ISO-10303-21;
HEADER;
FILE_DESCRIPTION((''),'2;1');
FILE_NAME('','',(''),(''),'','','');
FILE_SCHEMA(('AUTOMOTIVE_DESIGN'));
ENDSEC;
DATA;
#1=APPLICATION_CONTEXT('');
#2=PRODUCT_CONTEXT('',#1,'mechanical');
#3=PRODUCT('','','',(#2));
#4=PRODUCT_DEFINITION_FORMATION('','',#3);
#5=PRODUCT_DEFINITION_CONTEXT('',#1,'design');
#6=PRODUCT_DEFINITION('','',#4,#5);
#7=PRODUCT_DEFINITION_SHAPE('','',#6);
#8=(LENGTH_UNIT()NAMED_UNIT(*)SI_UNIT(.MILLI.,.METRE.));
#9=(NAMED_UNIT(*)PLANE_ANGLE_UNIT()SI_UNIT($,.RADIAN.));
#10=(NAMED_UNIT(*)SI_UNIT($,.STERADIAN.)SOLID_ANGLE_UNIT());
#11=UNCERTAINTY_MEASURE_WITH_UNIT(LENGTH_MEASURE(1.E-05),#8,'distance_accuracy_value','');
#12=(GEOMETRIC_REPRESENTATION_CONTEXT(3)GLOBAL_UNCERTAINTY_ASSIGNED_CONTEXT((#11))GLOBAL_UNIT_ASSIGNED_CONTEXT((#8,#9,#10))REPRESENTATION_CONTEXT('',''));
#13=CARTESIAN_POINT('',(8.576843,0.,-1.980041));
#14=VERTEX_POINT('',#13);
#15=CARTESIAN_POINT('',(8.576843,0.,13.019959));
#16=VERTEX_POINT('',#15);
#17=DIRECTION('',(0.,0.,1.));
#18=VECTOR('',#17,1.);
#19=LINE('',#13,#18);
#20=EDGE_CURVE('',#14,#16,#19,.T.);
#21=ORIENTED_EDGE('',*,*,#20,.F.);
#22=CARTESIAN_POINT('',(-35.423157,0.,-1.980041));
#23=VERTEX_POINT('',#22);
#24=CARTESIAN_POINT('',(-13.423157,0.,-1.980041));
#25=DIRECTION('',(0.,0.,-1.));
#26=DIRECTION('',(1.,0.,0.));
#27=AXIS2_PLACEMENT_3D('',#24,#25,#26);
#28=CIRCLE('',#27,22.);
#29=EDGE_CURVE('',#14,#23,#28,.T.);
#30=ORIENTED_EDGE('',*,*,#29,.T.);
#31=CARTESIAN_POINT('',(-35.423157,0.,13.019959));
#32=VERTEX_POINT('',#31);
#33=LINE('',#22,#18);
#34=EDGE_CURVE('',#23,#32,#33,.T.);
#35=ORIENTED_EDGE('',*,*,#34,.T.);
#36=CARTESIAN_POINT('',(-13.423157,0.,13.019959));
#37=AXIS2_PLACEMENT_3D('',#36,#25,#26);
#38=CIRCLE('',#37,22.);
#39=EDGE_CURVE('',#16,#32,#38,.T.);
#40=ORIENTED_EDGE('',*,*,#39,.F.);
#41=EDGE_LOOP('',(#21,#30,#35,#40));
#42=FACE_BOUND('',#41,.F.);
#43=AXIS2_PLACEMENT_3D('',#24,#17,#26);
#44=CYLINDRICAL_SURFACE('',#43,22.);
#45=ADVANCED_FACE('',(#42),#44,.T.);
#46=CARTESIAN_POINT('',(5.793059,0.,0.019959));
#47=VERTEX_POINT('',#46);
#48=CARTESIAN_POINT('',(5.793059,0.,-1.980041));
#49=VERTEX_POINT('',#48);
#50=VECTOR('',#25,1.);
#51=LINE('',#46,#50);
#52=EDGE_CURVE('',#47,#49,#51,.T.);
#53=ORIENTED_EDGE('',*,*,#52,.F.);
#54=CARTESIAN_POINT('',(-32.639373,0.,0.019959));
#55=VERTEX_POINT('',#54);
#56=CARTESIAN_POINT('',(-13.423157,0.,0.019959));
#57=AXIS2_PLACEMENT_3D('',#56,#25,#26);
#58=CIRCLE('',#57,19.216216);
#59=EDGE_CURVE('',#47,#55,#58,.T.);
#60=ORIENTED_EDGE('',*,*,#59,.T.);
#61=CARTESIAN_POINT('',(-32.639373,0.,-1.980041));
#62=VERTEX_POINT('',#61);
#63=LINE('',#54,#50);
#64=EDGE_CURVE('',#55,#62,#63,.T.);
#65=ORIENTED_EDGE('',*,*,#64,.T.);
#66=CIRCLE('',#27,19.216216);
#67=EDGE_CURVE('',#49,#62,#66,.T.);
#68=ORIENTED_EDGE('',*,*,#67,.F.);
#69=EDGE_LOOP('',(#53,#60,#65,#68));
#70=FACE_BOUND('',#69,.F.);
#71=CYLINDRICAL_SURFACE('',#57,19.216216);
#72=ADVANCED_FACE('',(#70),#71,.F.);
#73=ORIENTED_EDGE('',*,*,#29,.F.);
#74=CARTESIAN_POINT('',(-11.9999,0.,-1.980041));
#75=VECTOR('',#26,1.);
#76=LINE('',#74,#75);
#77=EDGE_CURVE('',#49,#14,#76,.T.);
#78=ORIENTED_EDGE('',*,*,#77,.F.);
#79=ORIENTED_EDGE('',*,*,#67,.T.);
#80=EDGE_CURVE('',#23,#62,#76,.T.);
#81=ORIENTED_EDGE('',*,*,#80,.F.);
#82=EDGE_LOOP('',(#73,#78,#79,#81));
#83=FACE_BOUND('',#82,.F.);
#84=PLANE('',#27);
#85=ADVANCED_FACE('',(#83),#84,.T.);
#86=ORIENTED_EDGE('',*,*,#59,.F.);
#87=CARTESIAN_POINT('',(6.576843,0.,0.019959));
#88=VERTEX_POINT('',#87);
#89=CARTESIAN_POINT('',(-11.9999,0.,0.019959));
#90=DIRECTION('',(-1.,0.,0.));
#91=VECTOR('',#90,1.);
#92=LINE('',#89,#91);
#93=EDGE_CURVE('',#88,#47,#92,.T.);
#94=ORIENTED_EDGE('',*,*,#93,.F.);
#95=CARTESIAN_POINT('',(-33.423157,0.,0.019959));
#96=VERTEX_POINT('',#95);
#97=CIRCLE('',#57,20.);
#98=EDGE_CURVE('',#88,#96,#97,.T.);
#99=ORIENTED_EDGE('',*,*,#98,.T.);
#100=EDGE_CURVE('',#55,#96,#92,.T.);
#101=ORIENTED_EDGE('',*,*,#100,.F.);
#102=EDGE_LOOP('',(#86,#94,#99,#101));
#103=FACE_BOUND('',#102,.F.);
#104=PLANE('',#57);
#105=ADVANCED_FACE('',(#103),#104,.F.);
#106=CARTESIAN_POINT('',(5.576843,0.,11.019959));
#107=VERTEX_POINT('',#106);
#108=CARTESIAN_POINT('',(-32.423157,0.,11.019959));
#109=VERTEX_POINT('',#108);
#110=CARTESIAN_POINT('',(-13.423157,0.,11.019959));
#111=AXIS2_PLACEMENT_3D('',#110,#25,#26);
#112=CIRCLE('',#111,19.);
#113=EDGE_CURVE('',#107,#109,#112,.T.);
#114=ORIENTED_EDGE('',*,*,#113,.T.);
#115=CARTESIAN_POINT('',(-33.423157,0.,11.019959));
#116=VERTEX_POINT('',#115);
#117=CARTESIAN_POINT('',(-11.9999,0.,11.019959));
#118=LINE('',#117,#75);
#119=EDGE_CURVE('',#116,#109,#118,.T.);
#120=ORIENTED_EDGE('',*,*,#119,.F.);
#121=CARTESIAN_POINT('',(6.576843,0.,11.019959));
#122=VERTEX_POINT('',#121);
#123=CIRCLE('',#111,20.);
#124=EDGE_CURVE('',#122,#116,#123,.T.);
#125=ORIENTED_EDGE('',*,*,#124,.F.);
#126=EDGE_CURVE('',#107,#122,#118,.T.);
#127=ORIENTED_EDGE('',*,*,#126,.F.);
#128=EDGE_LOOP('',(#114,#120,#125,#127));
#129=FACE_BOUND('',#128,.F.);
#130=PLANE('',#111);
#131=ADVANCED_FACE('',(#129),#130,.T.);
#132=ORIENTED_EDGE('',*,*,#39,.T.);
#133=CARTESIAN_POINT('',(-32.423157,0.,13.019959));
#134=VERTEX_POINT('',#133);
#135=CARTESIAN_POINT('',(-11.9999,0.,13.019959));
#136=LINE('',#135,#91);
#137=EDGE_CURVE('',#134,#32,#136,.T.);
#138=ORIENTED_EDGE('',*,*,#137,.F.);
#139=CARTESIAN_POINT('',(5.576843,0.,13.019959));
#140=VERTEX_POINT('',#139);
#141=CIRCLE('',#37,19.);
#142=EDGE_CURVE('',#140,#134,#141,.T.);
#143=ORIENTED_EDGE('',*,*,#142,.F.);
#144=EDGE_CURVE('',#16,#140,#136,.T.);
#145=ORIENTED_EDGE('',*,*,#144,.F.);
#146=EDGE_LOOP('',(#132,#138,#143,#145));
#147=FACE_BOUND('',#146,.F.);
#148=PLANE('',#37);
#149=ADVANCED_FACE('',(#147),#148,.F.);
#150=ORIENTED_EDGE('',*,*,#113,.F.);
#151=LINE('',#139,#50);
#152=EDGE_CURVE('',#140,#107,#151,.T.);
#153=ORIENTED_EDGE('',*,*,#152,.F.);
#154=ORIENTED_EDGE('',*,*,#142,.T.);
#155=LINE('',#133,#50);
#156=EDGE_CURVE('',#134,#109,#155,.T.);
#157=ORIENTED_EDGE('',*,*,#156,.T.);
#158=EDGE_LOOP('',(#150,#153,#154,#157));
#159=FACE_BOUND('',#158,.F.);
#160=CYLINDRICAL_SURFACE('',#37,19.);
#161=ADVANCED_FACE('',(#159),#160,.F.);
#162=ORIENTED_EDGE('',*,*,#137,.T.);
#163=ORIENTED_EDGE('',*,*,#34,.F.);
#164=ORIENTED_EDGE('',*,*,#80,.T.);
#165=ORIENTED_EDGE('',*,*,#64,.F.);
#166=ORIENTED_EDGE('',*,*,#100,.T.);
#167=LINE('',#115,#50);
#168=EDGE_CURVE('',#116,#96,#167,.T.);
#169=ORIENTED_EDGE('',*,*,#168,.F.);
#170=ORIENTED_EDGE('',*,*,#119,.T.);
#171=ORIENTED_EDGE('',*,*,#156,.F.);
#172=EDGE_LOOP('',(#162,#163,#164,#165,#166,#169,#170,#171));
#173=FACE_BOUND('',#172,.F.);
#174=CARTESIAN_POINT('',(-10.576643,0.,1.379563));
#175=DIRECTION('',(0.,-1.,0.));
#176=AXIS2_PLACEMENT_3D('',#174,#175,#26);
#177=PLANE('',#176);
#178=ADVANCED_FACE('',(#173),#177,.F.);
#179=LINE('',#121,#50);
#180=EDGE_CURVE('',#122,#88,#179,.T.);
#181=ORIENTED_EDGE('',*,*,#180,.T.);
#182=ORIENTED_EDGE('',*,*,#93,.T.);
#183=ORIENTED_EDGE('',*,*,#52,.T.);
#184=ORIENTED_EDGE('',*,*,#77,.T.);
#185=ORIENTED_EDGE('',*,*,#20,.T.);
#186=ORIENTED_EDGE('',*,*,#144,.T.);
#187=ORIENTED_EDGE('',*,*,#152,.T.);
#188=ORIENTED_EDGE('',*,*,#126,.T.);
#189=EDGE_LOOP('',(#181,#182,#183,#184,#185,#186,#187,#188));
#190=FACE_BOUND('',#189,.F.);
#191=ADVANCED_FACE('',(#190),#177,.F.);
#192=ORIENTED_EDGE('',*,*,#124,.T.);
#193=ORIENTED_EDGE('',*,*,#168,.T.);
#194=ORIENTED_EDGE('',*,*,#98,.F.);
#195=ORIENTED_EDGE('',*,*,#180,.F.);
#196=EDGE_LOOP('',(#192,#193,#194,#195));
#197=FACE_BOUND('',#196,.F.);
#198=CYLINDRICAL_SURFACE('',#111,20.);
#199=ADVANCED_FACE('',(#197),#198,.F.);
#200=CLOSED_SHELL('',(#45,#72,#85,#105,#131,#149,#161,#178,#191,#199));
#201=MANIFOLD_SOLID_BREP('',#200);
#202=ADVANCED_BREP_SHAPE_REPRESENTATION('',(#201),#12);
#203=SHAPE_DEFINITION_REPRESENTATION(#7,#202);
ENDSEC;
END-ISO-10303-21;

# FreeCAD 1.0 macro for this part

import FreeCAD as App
import Part
import Sketcher
from FreeCAD import Vector

doc = App.newDocument("Part")
body = doc.addObject("PartDesign::Body", "Body")

# Sketch on XZ plane
sketch1 = doc.addObject("Sketcher::SketchObject", "Sketch")
body.addObject(sketch1)
sketch1.AttachmentSupport = (doc.XZ_Plane, [""])
sketch1.MapMode = "FlatFace"
sketch1.addGeometry([
    Part.LineSegment(Vector(8.576843, 13.019959, 0), Vector(5.576843, 13.019959, 0)),  # 0
    Part.LineSegment(Vector(5.576843, 13.019959, 0), Vector(5.576843, 11.019959, 0)),  # 1
    Part.LineSegment(Vector(5.576843, 11.019959, 0), Vector(6.576843, 11.019959, 0)),  # 2
    Part.LineSegment(Vector(6.576843, 11.019959, 0), Vector(6.576843, 0.019959, 0)),  # 3
    Part.LineSegment(Vector(6.576843, 0.019959, 0), Vector(5.793059, 0.019959, 0)),  # 4
    Part.LineSegment(Vector(5.793059, 0.019959, 0), Vector(5.793059, -1.980041, 0)),  # 5
    Part.LineSegment(Vector(5.793059, -1.980041, 0), Vector(8.576843, -1.980041, 0)),  # 6
    Part.LineSegment(Vector(8.576843, -1.980041, 0), Vector(8.576843, 13.019959, 0)),  # 7
], False)
sketch1.addGeometry(Part.LineSegment(Vector(-13.423157, 13.019959, 0), Vector(-13.423157, -1.980041, 0)), True)  # axis
sketch1.addConstraint([
    Sketcher.Constraint("Coincident", 0, 2, 1, 1),
    Sketcher.Constraint("Coincident", 1, 2, 2, 1),
    Sketcher.Constraint("Coincident", 2, 2, 3, 1),
    Sketcher.Constraint("Coincident", 3, 2, 4, 1),
    Sketcher.Constraint("Coincident", 4, 2, 5, 1),
    Sketcher.Constraint("Coincident", 5, 2, 6, 1),
    Sketcher.Constraint("Coincident", 6, 2, 7, 1),
    Sketcher.Constraint("Coincident", 7, 2, 0, 1),
    Sketcher.Constraint("Horizontal", 0),
    Sketcher.Constraint("Vertical", 1),
    Sketcher.Constraint("Horizontal", 2),
    Sketcher.Constraint("Vertical", 3),
    Sketcher.Constraint("Horizontal", 4),
    Sketcher.Constraint("Vertical", 5),
    Sketcher.Constraint("Horizontal", 6),
    Sketcher.Constraint("Vertical", 7),
    Sketcher.Constraint("Vertical", 8),
    Sketcher.Constraint("Horizontal", 7, 2, 8, 1),
    Sketcher.Constraint("Horizontal", 6, 2, 8, 2),
    Sketcher.Constraint("Equal", 1, 5),
    Sketcher.Constraint("DistanceX", 0, 2, 0, 1, 3.0),
    Sketcher.Constraint("DistanceX", 2, 1, 2, 2, 1.0),
    Sketcher.Constraint("DistanceY", 1, 2, 1, 1, 2.0),
    Sketcher.Constraint("DistanceY", 3, 2, 3, 1, 11.0),
    Sketcher.Constraint("DistanceX", 8, 1, 0, 2, 19.0),
    Sketcher.Constraint("DistanceX", 4, 2, 4, 1, 0.783784),
    Sketcher.Constraint("DistanceY", -1, 1, 0, 2, 13.019959),
    Sketcher.Constraint("DistanceX", -1, 1, 4, 2, 5.793059),
])
revolution = doc.addObject("PartDesign::Revolution", "Revolution")
body.addObject(revolution)
revolution.Profile = sketch1
revolution.ReferenceAxis = (sketch1, ["Axis0"])
revolution.Angle = 360

# Sketch on XZ plane
sketch2 = doc.addObject("Sketcher::SketchObject", "Sketch001")
body.addObject(sketch2)
sketch2.AttachmentSupport = (doc.XZ_Plane, [""])
sketch2.MapMode = "FlatFace"
sketch2.addGeometry([
    Part.LineSegment(Vector(-52.768249, 32.189783, 0), Vector(-52.768249, -29.430657, 0)),
    Part.LineSegment(Vector(-52.768249, -29.430657, 0), Vector(31.614963, -29.430657, 0)),
    Part.LineSegment(Vector(31.614963, -29.430657, 0), Vector(31.614963, 32.189783, 0)),
    Part.LineSegment(Vector(31.614963, 32.189783, 0), Vector(-52.768249, 32.189783, 0)),
], False)
sketch2.addConstraint([
    Sketcher.Constraint("Coincident", 0, 2, 1, 1),
    Sketcher.Constraint("Coincident", 1, 2, 2, 1),
    Sketcher.Constraint("Coincident", 2, 2, 3, 1),
    Sketcher.Constraint("Coincident", 3, 2, 0, 1),
    Sketcher.Constraint("Vertical", 0),
    Sketcher.Constraint("Horizontal", 1),
    Sketcher.Constraint("Vertical", 2),
    Sketcher.Constraint("Horizontal", 3),
    Sketcher.Constraint("DistanceX", 1, 1, 1, 2, 84.383212),
    Sketcher.Constraint("DistanceY", 0, 2, 0, 1, 61.620441),
    Sketcher.Constraint("DistanceX", 0, 2, -1, 1, 52.768249),
    Sketcher.Constraint("DistanceY", 0, 2, -1, 1, 29.430657),
])
pocket1 = doc.addObject("PartDesign::Pocket", "Pocket")
body.addObject(pocket1)
pocket1.Profile = sketch2
pocket1.Length = 25

doc.recompute()
